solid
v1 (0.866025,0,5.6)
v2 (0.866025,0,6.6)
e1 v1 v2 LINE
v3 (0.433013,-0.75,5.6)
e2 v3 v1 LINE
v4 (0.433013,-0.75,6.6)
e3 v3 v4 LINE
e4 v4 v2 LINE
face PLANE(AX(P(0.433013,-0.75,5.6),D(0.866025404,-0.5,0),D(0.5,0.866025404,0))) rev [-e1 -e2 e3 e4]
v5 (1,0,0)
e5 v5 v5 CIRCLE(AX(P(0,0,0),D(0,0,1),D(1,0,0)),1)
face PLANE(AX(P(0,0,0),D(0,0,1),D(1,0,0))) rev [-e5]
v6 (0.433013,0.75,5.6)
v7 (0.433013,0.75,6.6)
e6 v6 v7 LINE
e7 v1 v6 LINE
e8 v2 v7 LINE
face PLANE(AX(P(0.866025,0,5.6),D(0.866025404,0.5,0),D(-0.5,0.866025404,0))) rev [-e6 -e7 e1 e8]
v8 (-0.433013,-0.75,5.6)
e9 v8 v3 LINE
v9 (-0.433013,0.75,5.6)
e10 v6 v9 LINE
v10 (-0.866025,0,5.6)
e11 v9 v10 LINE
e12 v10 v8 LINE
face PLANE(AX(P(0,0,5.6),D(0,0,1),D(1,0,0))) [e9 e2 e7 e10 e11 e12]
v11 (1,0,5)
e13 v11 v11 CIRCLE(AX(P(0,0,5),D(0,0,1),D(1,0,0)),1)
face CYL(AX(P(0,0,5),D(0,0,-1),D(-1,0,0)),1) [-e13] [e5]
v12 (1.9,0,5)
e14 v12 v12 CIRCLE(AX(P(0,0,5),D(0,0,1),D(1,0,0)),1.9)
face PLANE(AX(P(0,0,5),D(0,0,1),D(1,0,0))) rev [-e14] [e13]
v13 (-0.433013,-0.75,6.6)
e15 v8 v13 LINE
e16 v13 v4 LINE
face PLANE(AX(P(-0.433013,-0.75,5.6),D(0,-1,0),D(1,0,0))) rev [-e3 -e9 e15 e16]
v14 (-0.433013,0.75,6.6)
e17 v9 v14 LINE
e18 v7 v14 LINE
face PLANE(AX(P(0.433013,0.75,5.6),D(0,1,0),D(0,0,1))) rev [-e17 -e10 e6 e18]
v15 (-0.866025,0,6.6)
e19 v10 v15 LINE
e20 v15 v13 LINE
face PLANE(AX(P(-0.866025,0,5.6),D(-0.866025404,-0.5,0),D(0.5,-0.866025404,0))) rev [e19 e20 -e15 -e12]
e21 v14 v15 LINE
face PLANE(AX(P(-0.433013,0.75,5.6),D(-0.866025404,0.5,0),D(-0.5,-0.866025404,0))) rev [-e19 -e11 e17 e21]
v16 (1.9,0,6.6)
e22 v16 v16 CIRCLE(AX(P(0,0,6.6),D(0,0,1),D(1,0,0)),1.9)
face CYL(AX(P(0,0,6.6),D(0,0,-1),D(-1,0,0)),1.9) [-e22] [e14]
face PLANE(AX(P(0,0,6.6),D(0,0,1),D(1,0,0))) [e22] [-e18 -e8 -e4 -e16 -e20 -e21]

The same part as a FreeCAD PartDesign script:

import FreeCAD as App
import Part
import Sketcher
from FreeCAD import Vector
Q = App.Units.Quantity

doc = App.newDocument("Part")
body = doc.addObject("PartDesign::Body", "Body")

# Sketch on XY plane
sketch1 = body.newObject("Sketcher::SketchObject", "Sketch")
sketch1.AttachmentSupport = (doc.getObject("XY_Plane"), [""])
sketch1.MapMode = "FlatFace"
sketch1.addGeometry(Part.Circle(Vector(0, 0, 0), Vector(0, 0, 1), 1), False)
sketch1.addConstraint([
    Sketcher.Constraint("Coincident", 0, 3, -1, 1),
    Sketcher.Constraint("Diameter", 0, Q("2 mm")),
])
pad1 = body.newObject("PartDesign::Pad", "Pad")
pad1.Profile = sketch1
pad1.Length = 5

# Sketch on XY plane
sketch2 = body.newObject("Sketcher::SketchObject", "Sketch001")
sketch2.AttachmentSupport = (doc.getObject("XY_Plane"), [""])
sketch2.MapMode = "FlatFace"
sketch2.AttachmentOffset = App.Placement(Vector(0, 0, 5), App.Rotation())
sketch2.addGeometry(Part.Circle(Vector(0, 0, 0), Vector(0, 0, 1), 1.9), False)
sketch2.addConstraint([
    Sketcher.Constraint("Coincident", 0, 3, -1, 1),
    Sketcher.Constraint("Diameter", 0, Q("3.8 mm")),
])
pad2 = body.newObject("PartDesign::Pad", "Pad001")
pad2.Profile = sketch2
pad2.Length = 1.6

# Sketch on XY plane
sketch3 = body.newObject("Sketcher::SketchObject", "Sketch002")
sketch3.AttachmentSupport = (doc.getObject("XY_Plane"), [""])
sketch3.MapMode = "FlatFace"
sketch3.AttachmentOffset = App.Placement(Vector(0, 0, 6.6), App.Rotation())
sketch3.addGeometry([
    Part.LineSegment(Vector(0.866025, 0, 0), Vector(0.433013, 0.75, 0)),  # 0
    Part.LineSegment(Vector(0.433013, 0.75, 0), Vector(-0.433013, 0.75, 0)),  # 1
    Part.LineSegment(Vector(-0.433013, 0.75, 0), Vector(-0.866025, 0, 0)),  # 2
    Part.LineSegment(Vector(-0.866025, 0, 0), Vector(-0.433013, -0.75, 0)),  # 3
    Part.LineSegment(Vector(-0.433013, -0.75, 0), Vector(0.433013, -0.75, 0)),  # 4
    Part.LineSegment(Vector(0.433013, -0.75, 0), Vector(0.866025, 0, 0)),  # 5
], False)
sketch3.addConstraint([
    Sketcher.Constraint("Coincident", 0, 2, 1, 1),
    Sketcher.Constraint("Coincident", 1, 2, 2, 1),
    Sketcher.Constraint("Coincident", 2, 2, 3, 1),
    Sketcher.Constraint("Coincident", 3, 2, 4, 1),
    Sketcher.Constraint("Coincident", 4, 2, 5, 1),
    Sketcher.Constraint("Coincident", 5, 2, 0, 1),
    Sketcher.Constraint("Horizontal", 1),
    Sketcher.Constraint("Horizontal", 4),
    Sketcher.Constraint("Symmetric", 0, 2, 3, 2, -1, 1),
    Sketcher.Constraint("Symmetric", 2, 2, 5, 2, -1, 1),
    Sketcher.Constraint("PointOnObject", 2, 2, -1),
    Sketcher.Constraint("Parallel", 2, 5),
    Sketcher.Constraint("Vertical", 1, 2, 3, 2),
    Sketcher.Constraint("Angle", 0, Q("120 deg")),
    Sketcher.Constraint("DistanceY", 3, 2, 1, 2, Q("1.5 mm")),
    Sketcher.Constraint("DistanceX", 1, 2, 1, 1, Q("0.866025 mm")),
])
pocket1 = body.newObject("PartDesign::Pocket", "Pocket")
pocket1.Profile = sketch3
pocket1.Length = 1

doc.recompute()
